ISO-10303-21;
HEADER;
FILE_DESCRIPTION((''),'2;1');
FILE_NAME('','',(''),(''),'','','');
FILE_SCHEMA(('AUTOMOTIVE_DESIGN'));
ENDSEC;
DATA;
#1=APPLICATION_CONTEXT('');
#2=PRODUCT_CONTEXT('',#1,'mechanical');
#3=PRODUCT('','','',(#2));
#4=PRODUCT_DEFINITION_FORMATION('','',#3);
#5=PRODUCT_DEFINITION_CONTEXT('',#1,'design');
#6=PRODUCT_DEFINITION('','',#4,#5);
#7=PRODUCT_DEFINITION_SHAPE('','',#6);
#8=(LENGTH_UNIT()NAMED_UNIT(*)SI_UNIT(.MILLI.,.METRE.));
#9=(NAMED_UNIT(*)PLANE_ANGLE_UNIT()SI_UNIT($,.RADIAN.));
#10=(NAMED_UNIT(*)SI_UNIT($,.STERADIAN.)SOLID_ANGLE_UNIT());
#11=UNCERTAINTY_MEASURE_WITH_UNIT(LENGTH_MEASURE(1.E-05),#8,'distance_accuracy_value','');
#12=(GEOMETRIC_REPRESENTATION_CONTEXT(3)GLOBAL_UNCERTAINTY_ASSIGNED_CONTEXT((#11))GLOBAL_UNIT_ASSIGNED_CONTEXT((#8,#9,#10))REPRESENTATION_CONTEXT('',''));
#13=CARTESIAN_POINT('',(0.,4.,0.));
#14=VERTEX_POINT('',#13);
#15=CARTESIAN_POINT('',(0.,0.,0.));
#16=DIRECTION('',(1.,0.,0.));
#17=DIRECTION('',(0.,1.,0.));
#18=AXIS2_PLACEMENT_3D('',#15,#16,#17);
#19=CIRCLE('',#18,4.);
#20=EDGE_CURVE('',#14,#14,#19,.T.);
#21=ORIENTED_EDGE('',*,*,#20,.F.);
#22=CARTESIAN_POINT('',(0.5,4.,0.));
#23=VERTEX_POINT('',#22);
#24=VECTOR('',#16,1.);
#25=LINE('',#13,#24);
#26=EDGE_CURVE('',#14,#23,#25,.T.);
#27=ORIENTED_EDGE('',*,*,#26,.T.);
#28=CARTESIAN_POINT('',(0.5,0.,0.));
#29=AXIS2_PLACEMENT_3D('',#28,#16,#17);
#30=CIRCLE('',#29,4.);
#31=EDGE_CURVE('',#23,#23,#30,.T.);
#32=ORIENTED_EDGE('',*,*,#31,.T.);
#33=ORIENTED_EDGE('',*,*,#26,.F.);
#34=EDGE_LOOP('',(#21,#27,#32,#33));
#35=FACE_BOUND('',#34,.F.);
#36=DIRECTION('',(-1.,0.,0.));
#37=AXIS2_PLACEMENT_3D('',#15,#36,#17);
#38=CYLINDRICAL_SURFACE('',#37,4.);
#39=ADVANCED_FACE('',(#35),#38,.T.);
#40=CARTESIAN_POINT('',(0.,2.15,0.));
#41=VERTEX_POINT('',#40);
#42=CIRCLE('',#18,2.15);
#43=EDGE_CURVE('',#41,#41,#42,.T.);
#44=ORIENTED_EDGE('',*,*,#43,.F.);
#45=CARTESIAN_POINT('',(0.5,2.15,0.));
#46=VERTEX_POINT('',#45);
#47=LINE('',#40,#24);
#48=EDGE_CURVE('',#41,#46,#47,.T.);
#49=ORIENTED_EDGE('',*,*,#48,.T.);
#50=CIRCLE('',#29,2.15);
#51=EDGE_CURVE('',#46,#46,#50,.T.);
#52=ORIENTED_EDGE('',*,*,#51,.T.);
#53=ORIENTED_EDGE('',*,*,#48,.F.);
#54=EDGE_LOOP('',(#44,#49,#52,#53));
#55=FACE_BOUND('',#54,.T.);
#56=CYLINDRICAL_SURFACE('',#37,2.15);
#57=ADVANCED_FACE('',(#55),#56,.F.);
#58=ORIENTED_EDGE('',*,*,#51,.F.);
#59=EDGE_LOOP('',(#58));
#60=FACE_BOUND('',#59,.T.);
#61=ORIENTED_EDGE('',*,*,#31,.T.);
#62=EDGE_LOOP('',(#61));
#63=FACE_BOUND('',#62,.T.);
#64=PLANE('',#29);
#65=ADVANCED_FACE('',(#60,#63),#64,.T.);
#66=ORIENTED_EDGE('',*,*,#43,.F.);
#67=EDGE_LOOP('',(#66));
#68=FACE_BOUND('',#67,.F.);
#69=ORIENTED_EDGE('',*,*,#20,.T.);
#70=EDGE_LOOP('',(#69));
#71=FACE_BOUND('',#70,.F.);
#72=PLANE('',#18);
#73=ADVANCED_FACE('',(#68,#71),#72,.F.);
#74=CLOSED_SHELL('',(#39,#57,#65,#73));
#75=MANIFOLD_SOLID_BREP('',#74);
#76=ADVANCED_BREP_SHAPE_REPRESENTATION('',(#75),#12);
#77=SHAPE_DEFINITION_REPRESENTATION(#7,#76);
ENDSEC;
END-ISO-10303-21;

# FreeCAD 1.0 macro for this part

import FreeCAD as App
import Part
import Sketcher
Q = App.Units.Quantity

doc = App.newDocument("Part")
body = doc.addObject("PartDesign::Body", "Body")

# Sketch on YZ plane
sketch1 = body.newObject("Sketcher::SketchObject", "Sketch")
sketch1.AttachmentSupport = (doc.getObject("YZ_Plane"), [""])
sketch1.MapMode = "FlatFace"
sketch1.addGeometry([
    Part.Circle(App.Vector(0, 0, 0), App.Vector(0, 0, 1), 4),
    Part.Circle(App.Vector(0, 0, 0), App.Vector(0, 0, 1), 2.15),
], False)
sketch1.addConstraint([
    Sketcher.Constraint("Coincident", 0, 3, -1, 1),
    Sketcher.Constraint("Coincident", 1, 3, -1, 1),
    Sketcher.Constraint("Diameter", 0, Q("8 mm")),
    Sketcher.Constraint("Diameter", 1, Q("4.3 mm")),
])
pad1 = body.newObject("PartDesign::Pad", "Pad")
pad1.Profile = sketch1
pad1.Length = 0.5

doc.recompute()
